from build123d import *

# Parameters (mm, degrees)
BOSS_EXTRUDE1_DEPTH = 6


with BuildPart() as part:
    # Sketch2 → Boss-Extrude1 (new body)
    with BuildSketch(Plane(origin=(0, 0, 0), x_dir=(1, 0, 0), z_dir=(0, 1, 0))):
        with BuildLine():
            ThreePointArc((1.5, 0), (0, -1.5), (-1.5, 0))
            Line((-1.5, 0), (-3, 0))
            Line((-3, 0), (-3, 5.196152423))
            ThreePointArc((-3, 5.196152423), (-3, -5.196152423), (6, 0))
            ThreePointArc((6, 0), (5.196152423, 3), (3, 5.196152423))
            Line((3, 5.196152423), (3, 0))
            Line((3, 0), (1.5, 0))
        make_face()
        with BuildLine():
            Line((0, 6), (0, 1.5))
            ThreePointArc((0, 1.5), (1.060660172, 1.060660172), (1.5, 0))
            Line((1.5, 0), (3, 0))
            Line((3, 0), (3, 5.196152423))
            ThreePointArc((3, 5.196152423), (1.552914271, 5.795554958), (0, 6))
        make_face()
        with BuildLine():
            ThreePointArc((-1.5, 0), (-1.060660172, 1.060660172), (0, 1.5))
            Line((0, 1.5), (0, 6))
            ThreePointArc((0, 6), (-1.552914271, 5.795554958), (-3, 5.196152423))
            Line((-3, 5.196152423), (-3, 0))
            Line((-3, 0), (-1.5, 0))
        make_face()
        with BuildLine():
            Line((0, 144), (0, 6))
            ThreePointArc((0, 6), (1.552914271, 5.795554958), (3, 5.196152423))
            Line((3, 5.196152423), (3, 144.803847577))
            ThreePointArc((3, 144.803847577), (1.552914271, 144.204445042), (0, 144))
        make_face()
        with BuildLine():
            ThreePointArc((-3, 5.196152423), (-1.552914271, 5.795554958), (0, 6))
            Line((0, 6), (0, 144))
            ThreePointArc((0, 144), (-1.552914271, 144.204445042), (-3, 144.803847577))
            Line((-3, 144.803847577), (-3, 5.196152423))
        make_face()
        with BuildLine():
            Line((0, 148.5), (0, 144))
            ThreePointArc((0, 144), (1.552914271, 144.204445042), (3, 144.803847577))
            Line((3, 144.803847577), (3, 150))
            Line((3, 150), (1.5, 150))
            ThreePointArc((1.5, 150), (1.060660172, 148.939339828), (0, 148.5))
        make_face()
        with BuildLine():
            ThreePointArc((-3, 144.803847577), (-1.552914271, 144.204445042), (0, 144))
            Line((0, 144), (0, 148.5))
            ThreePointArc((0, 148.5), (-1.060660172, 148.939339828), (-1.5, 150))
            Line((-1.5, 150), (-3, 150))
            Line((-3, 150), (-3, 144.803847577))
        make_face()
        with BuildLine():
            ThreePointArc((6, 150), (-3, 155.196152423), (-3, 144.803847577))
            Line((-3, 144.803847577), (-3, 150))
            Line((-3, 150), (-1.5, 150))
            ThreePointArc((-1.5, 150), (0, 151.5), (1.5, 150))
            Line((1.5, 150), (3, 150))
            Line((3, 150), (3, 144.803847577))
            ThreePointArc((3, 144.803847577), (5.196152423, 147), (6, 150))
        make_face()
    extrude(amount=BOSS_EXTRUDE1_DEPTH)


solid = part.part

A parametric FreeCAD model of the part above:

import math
import FreeCAD as App
import Part
import Sketcher
from FreeCAD import Vector
Q = App.Units.Quantity

doc = App.newDocument("Part")
body = doc.addObject("PartDesign::Body", "Body")

sketch1 = body.newObject("Sketcher::SketchObject", "Sketch")
sketch1.AttachmentSupport = (doc.getObject("XZ_Plane"), [""])
sketch1.MapMode = "FlatFace"
sketch1.addGeometry([
    Part.ArcOfCircle(Part.Circle(Vector(0, 0, 0), Vector(0, 0, 1), 6), math.radians(0), math.radians(240)),
    Part.ArcOfCircle(Part.Circle(Vector(0, 0, 0), Vector(0, 0, 1), 6), math.radians(-60), math.radians(0)),
    Part.LineSegment(Vector(3, -5.2, 0), Vector(3, -144.8, 0)),
    Part.ArcOfCircle(Part.Circle(Vector(0, -150, 0), Vector(0, 0, 1), 6), math.radians(0), math.radians(60)),
    Part.ArcOfCircle(Part.Circle(Vector(0, -150, 0), Vector(0, 0, 1), 6), math.radians(120), math.radians(360)),
    Part.LineSegment(Vector(-3, -144.8, 0), Vector(-3, -5.2, 0)),
    Part.ArcOfCircle(Part.Circle(Vector(0, 0, 0), Vector(0, 0, 1), 1.5), math.radians(0), math.radians(180)),
    Part.ArcOfCircle(Part.Circle(Vector(0, 0, 0), Vector(0, 0, 1), 1.5), math.radians(180), math.radians(270)),
    Part.ArcOfCircle(Part.Circle(Vector(0, 0, 0), Vector(0, 0, 1), 1.5), math.radians(-90), math.radians(0)),
    Part.ArcOfCircle(Part.Circle(Vector(0, -150, 0), Vector(0, 0, 1), 1.5), math.radians(0), math.radians(90)),
    Part.ArcOfCircle(Part.Circle(Vector(0, -150, 0), Vector(0, 0, 1), 1.5), math.radians(90), math.radians(180)),
    Part.ArcOfCircle(Part.Circle(Vector(0, -150, 0), Vector(0, 0, 1), 1.5), math.radians(180), math.radians(360)),
], False)
sketch1.addConstraint([
    Sketcher.Constraint("Tangent", 0, 1, 1, 2),
    Sketcher.Constraint("Coincident", 1, 1, 2, 1),
    Sketcher.Constraint("Coincident", 2, 2, 3, 2),
    Sketcher.Constraint("Tangent", 3, 1, 4, 2),
    Sketcher.Constraint("Coincident", 4, 1, 5, 1),
    Sketcher.Constraint("Coincident", 5, 2, 0, 2),
    Sketcher.Constraint("Tangent", 6, 2, 7, 1),
    Sketcher.Constraint("Tangent", 7, 2, 8, 1),
    Sketcher.Constraint("Tangent", 8, 2, 6, 1),
    Sketcher.Constraint("Tangent", 9, 2, 10, 1),
    Sketcher.Constraint("Tangent", 10, 2, 11, 1),
    Sketcher.Constraint("Tangent", 11, 2, 9, 1),
    Sketcher.Constraint("Vertical", 2),
    Sketcher.Constraint("Vertical", 5),
    Sketcher.Constraint("Coincident", 0, 3, -1, 1),
    Sketcher.Constraint("Coincident", 6, 3, -1, 1),
    Sketcher.Constraint("Coincident", 9, 3, 3, 3),
    Sketcher.Constraint("Equal", 0, 1),
    Sketcher.Constraint("Equal", 1, 3),
    Sketcher.Constraint("Equal", 3, 4),
    Sketcher.Constraint("Equal", 8, 9),
    Sketcher.Constraint("Symmetric", 2, 2, 4, 1, -2),
    Sketcher.Constraint("PointOnObject", 0, 1, -1),
    Sketcher.Constraint("PointOnObject", 6, 2, -1),
    Sketcher.Constraint("PointOnObject", 7, 2, -2),
    Sketcher.Constraint("PointOnObject", 8, 2, -1),
    Sketcher.Constraint("PointOnObject", 9, 2, -2),
    Sketcher.Constraint("Horizontal", 11, 3, 3, 1),
    Sketcher.Constraint("Horizontal", 3, 1, 10, 2),
    Sketcher.Constraint("Horizontal", 10, 2, 11, 2),
    Sketcher.Constraint("Radius", 0, Q("6 mm")),
    Sketcher.Constraint("Radius", 6, Q("1.5 mm")),
    Sketcher.Constraint("DistanceY", 3, 3, -1, 1, Q("150 mm")),
    Sketcher.Constraint("DistanceX", -1, 1, 1, 1, Q("3 mm")),
])
pad1 = body.newObject("PartDesign::Pad", "Pad")
pad1.Profile = sketch1
pad1.Length = 6
pad1.Reversed = True

doc.recompute()
